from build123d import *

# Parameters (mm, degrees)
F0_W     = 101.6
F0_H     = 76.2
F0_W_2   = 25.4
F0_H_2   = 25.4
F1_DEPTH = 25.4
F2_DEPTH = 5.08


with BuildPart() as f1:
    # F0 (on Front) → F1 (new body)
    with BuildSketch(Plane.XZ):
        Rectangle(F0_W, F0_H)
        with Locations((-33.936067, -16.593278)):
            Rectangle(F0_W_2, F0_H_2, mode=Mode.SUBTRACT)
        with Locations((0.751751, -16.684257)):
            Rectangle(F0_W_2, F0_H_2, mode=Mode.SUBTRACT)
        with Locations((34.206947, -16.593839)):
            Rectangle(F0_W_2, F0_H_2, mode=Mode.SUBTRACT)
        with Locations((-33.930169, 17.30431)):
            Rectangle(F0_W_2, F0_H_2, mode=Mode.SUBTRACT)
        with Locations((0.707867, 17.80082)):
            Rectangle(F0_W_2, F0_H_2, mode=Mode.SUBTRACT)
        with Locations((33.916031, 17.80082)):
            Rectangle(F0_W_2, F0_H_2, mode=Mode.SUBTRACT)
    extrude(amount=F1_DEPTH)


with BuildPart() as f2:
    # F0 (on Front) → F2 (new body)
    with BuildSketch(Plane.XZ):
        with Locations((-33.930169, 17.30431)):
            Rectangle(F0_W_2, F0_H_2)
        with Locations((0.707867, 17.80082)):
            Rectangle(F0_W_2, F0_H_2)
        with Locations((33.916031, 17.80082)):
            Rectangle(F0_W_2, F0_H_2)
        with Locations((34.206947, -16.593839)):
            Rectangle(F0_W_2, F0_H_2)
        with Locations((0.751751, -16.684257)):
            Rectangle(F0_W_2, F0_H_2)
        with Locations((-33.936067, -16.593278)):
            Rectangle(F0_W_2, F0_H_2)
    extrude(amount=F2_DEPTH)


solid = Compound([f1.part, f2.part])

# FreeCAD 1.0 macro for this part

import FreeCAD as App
import Part
import Sketcher
from FreeCAD import Vector
Q = App.Units.Quantity

doc = App.newDocument("Part")
body = doc.addObject("PartDesign::Body", "Body")

# Sketch on XZ plane
sketch1 = doc.addObject("Sketcher::SketchObject", "Sketch")
body.addObject(sketch1)
sketch1.AttachmentSupport = (doc.XZ_Plane, [""])
sketch1.MapMode = "FlatFace"
sketch1.addGeometry([
    Part.LineSegment(Vector(-51, 38, 0), Vector(-51, -38, 0)),  # 0
    Part.LineSegment(Vector(-51, -38, 0), Vector(51, -38, 0)),  # 1
    Part.LineSegment(Vector(51, -38, 0), Vector(51, 38, 0)),  # 2
    Part.LineSegment(Vector(51, 38, 0), Vector(-51, 38, 0)),  # 3
    Part.LineSegment(Vector(-21, -29, 0), Vector(-47, -29, 0)),  # 4
    Part.LineSegment(Vector(-47, -29, 0), Vector(-47, -4, 0)),  # 5
    Part.LineSegment(Vector(-47, -4, 0), Vector(-21, -4, 0)),  # 6
    Part.LineSegment(Vector(-21, -4, 0), Vector(-21, -29, 0)),  # 7
    Part.LineSegment(Vector(13, -29, 0), Vector(-12, -29, 0)),  # 8
    Part.LineSegment(Vector(-12, -29, 0), Vector(-12, -4, 0)),  # 9
    Part.LineSegment(Vector(-12, -4, 0), Vector(13, -4, 0)),  # 10
    Part.LineSegment(Vector(13, -4, 0), Vector(13, -29, 0)),  # 11
    Part.LineSegment(Vector(47, -29, 0), Vector(22, -29, 0)),  # 12
    Part.LineSegment(Vector(22, -29, 0), Vector(22, -4, 0)),  # 13
    Part.LineSegment(Vector(22, -4, 0), Vector(47, -4, 0)),  # 14
    Part.LineSegment(Vector(47, -4, 0), Vector(47, -29, 0)),  # 15
    Part.LineSegment(Vector(-21, 5, 0), Vector(-47, 5, 0)),  # 16
    Part.LineSegment(Vector(-47, 5, 0), Vector(-47, 30, 0)),  # 17
    Part.LineSegment(Vector(-47, 30, 0), Vector(-21, 30, 0)),  # 18
    Part.LineSegment(Vector(-21, 30, 0), Vector(-21, 5, 0)),  # 19
    Part.LineSegment(Vector(13, 5, 0), Vector(-12, 5, 0)),  # 20
    Part.LineSegment(Vector(-12, 5, 0), Vector(-12, 31, 0)),  # 21
    Part.LineSegment(Vector(-12, 31, 0), Vector(13, 31, 0)),  # 22
    Part.LineSegment(Vector(13, 31, 0), Vector(13, 5, 0)),  # 23
    Part.LineSegment(Vector(47, 5, 0), Vector(21, 5, 0)),  # 24
    Part.LineSegment(Vector(21, 5, 0), Vector(21, 31, 0)),  # 25
    Part.LineSegment(Vector(21, 31, 0), Vector(47, 31, 0)),  # 26
    Part.LineSegment(Vector(47, 31, 0), Vector(47, 5, 0)),  # 27
], False)
sketch1.addConstraint([
    Sketcher.Constraint("Coincident", 0, 2, 1, 1),
    Sketcher.Constraint("Coincident", 1, 2, 2, 1),
    Sketcher.Constraint("Coincident", 2, 2, 3, 1),
    Sketcher.Constraint("Coincident", 3, 2, 0, 1),
    Sketcher.Constraint("Coincident", 4, 2, 5, 1),
    Sketcher.Constraint("Coincident", 5, 2, 6, 1),
    Sketcher.Constraint("Coincident", 6, 2, 7, 1),
    Sketcher.Constraint("Coincident", 7, 2, 4, 1),
    Sketcher.Constraint("Coincident", 8, 2, 9, 1),
    Sketcher.Constraint("Coincident", 9, 2, 10, 1),
    Sketcher.Constraint("Coincident", 10, 2, 11, 1),
    Sketcher.Constraint("Coincident", 11, 2, 8, 1),
    Sketcher.Constraint("Coincident", 12, 2, 13, 1),
    Sketcher.Constraint("Coincident", 13, 2, 14, 1),
    Sketcher.Constraint("Coincident", 14, 2, 15, 1),
    Sketcher.Constraint("Coincident", 15, 2, 12, 1),
    Sketcher.Constraint("Coincident", 16, 2, 17, 1),
    Sketcher.Constraint("Coincident", 17, 2, 18, 1),
    Sketcher.Constraint("Coincident", 18, 2, 19, 1),
    Sketcher.Constraint("Coincident", 19, 2, 16, 1),
    Sketcher.Constraint("Coincident", 20, 2, 21, 1),
    Sketcher.Constraint("Coincident", 21, 2, 22, 1),
    Sketcher.Constraint("Coincident", 22, 2, 23, 1),
    Sketcher.Constraint("Coincident", 23, 2, 20, 1),
    Sketcher.Constraint("Coincident", 24, 2, 25, 1),
    Sketcher.Constraint("Coincident", 25, 2, 26, 1),
    Sketcher.Constraint("Coincident", 26, 2, 27, 1),
    Sketcher.Constraint("Coincident", 27, 2, 24, 1),
    Sketcher.Constraint("Vertical", 0),
    Sketcher.Constraint("Horizontal", 1),
    Sketcher.Constraint("Vertical", 2),
    Sketcher.Constraint("Horizontal", 3),
    Sketcher.Constraint("Horizontal", 4),
    Sketcher.Constraint("Vertical", 5),
    Sketcher.Constraint("Horizontal", 6),
    Sketcher.Constraint("Vertical", 7),
    Sketcher.Constraint("Horizontal", 8),
    Sketcher.Constraint("Vertical", 9),
    Sketcher.Constraint("Horizontal", 10),
    Sketcher.Constraint("Vertical", 11),
    Sketcher.Constraint("Horizontal", 12),
    Sketcher.Constraint("Vertical", 13),
    Sketcher.Constraint("Horizontal", 14),
    Sketcher.Constraint("Vertical", 15),
    Sketcher.Constraint("Horizontal", 16),
    Sketcher.Constraint("Vertical", 17),
    Sketcher.Constraint("Horizontal", 18),
    Sketcher.Constraint("Vertical", 19),
    Sketcher.Constraint("Horizontal", 20),
    Sketcher.Constraint("Vertical", 21),
    Sketcher.Constraint("Horizontal", 22),
    Sketcher.Constraint("Vertical", 23),
    Sketcher.Constraint("Horizontal", 24),
    Sketcher.Constraint("Vertical", 25),
    Sketcher.Constraint("Horizontal", 26),
    Sketcher.Constraint("Vertical", 27),
    Sketcher.Constraint("Symmetric", 0, 2, 2, 2, -1, 1),
    Sketcher.Constraint("Horizontal", 23, 2, 24, 2),
    Sketcher.Constraint("Horizontal", 22, 2, 25, 2),
    Sketcher.Constraint("Equal", 6, 8),
    Sketcher.Constraint("Equal", 10, 12),
    Sketcher.Constraint("Equal", 14, 16),
    Sketcher.Constraint("Equal", 18, 20),
    Sketcher.Constraint("Equal", 22, 24),
    Sketcher.Constraint("Equal", 26, 5),
    Sketcher.Constraint("Equal", 7, 9),
    Sketcher.Constraint("Equal", 11, 13),
    Sketcher.Constraint("Equal", 15, 17),
    Sketcher.Constraint("Equal", 19, 21),
    Sketcher.Constraint("DistanceX", 1, 1, 1, 2, Q("4 in")),
    Sketcher.Constraint("DistanceX", 4, 2, 4, 1, Q("1 in")),
    Sketcher.Constraint("DistanceY", 0, 2, 0, 1, Q("3 in")),
    Sketcher.Constraint("DistanceY", 4, 2, -1, 1, Q("29.293278 mm")),
    Sketcher.Constraint("DistanceX", 8, 2, -1, 1, Q("11.948249 mm")),
    Sketcher.Constraint("DistanceY", 12, 2, -1, 1, Q("29.293839 mm")),
    Sketcher.Constraint("DistanceX", 16, 2, -1, 1, Q("46.630169 mm")),
    Sketcher.Constraint("DistanceY", -1, 1, 16, 2, Q("4.60431 mm")),
    Sketcher.Constraint("DistanceY", -1, 1, 20, 2, Q("5.10082 mm")),
    Sketcher.Constraint("DistanceX", -1, 1, 24, 2, Q("21.216031 mm")),
    Sketcher.Constraint("DistanceY", 8, 2, 7, 2, Q("0.090979 mm")),
    Sketcher.Constraint("DistanceX", 22, 2, 13, 2, Q("8.09908 mm")),
    Sketcher.Constraint("DistanceX", 4, 2, -1, 1, Q("46.636067 mm")),
    Sketcher.Constraint("DistanceX", -1, 1, 12, 2, Q("21.506947 mm")),
])
pad1 = doc.addObject("PartDesign::Pad", "Pad")
body.addObject(pad1)
pad1.Profile = sketch1
pad1.Length = Q("1 in")
body2 = doc.addObject("PartDesign::Body", "Body001")
body2.AllowCompound = True

# Sketch on XZ plane
sketch2 = doc.addObject("Sketcher::SketchObject", "Sketch001")
body2.addObject(sketch2)
sketch2.AttachmentSupport = (doc.getObject("XZ_Plane001"), [""])
sketch2.MapMode = "FlatFace"
sketch2.addGeometry([
    Part.LineSegment(Vector(-47, 30, 0), Vector(-47, 5, 0)),  # 0
    Part.LineSegment(Vector(-47, 5, 0), Vector(-21, 5, 0)),  # 1
    Part.LineSegment(Vector(-21, 5, 0), Vector(-21, 30, 0)),  # 2
    Part.LineSegment(Vector(-21, 30, 0), Vector(-47, 30, 0)),  # 3
    Part.LineSegment(Vector(-12, 31, 0), Vector(-12, 5, 0)),  # 4
    Part.LineSegment(Vector(-12, 5, 0), Vector(13, 5, 0)),  # 5
    Part.LineSegment(Vector(13, 5, 0), Vector(13, 31, 0)),  # 6
    Part.LineSegment(Vector(13, 31, 0), Vector(-12, 31, 0)),  # 7
    Part.LineSegment(Vector(21, 31, 0), Vector(21, 5, 0)),  # 8
    Part.LineSegment(Vector(21, 5, 0), Vector(47, 5, 0)),  # 9
    Part.LineSegment(Vector(47, 5, 0), Vector(47, 31, 0)),  # 10
    Part.LineSegment(Vector(47, 31, 0), Vector(21, 31, 0)),  # 11
    Part.LineSegment(Vector(22, -4, 0), Vector(22, -29, 0)),  # 12
    Part.LineSegment(Vector(22, -29, 0), Vector(47, -29, 0)),  # 13
    Part.LineSegment(Vector(47, -29, 0), Vector(47, -4, 0)),  # 14
    Part.LineSegment(Vector(47, -4, 0), Vector(22, -4, 0)),  # 15
    Part.LineSegment(Vector(-12, -4, 0), Vector(-12, -29, 0)),  # 16
    Part.LineSegment(Vector(-12, -29, 0), Vector(13, -29, 0)),  # 17
    Part.LineSegment(Vector(13, -29, 0), Vector(13, -4, 0)),  # 18
    Part.LineSegment(Vector(13, -4, 0), Vector(-12, -4, 0)),  # 19
    Part.LineSegment(Vector(-47, -4, 0), Vector(-47, -29, 0)),  # 20
    Part.LineSegment(Vector(-47, -29, 0), Vector(-21, -29, 0)),  # 21
    Part.LineSegment(Vector(-21, -29, 0), Vector(-21, -4, 0)),  # 22
    Part.LineSegment(Vector(-21, -4, 0), Vector(-47, -4, 0)),  # 23
], False)
sketch2.addConstraint([
    Sketcher.Constraint("Coincident", 0, 2, 1, 1),
    Sketcher.Constraint("Coincident", 1, 2, 2, 1),
    Sketcher.Constraint("Coincident", 2, 2, 3, 1),
    Sketcher.Constraint("Coincident", 3, 2, 0, 1),
    Sketcher.Constraint("Coincident", 4, 2, 5, 1),
    Sketcher.Constraint("Coincident", 5, 2, 6, 1),
    Sketcher.Constraint("Coincident", 6, 2, 7, 1),
    Sketcher.Constraint("Coincident", 7, 2, 4, 1),
    Sketcher.Constraint("Coincident", 8, 2, 9, 1),
    Sketcher.Constraint("Coincident", 9, 2, 10, 1),
    Sketcher.Constraint("Coincident", 10, 2, 11, 1),
    Sketcher.Constraint("Coincident", 11, 2, 8, 1),
    Sketcher.Constraint("Coincident", 12, 2, 13, 1),
    Sketcher.Constraint("Coincident", 13, 2, 14, 1),
    Sketcher.Constraint("Coincident", 14, 2, 15, 1),
    Sketcher.Constraint("Coincident", 15, 2, 12, 1),
    Sketcher.Constraint("Coincident", 16, 2, 17, 1),
    Sketcher.Constraint("Coincident", 17, 2, 18, 1),
    Sketcher.Constraint("Coincident", 18, 2, 19, 1),
    Sketcher.Constraint("Coincident", 19, 2, 16, 1),
    Sketcher.Constraint("Coincident", 20, 2, 21, 1),
    Sketcher.Constraint("Coincident", 21, 2, 22, 1),
    Sketcher.Constraint("Coincident", 22, 2, 23, 1),
    Sketcher.Constraint("Coincident", 23, 2, 20, 1),
    Sketcher.Constraint("Vertical", 0),
    Sketcher.Constraint("Horizontal", 1),
    Sketcher.Constraint("Vertical", 2),
    Sketcher.Constraint("Horizontal", 3),
    Sketcher.Constraint("Vertical", 4),
    Sketcher.Constraint("Horizontal", 5),
    Sketcher.Constraint("Vertical", 6),
    Sketcher.Constraint("Horizontal", 7),
    Sketcher.Constraint("Vertical", 8),
    Sketcher.Constraint("Horizontal", 9),
    Sketcher.Constraint("Vertical", 10),
    Sketcher.Constraint("Horizontal", 11),
    Sketcher.Constraint("Vertical", 12),
    Sketcher.Constraint("Horizontal", 13),
    Sketcher.Constraint("Vertical", 14),
    Sketcher.Constraint("Horizontal", 15),
    Sketcher.Constraint("Vertical", 16),
    Sketcher.Constraint("Horizontal", 17),
    Sketcher.Constraint("Vertical", 18),
    Sketcher.Constraint("Horizontal", 19),
    Sketcher.Constraint("Vertical", 20),
    Sketcher.Constraint("Horizontal", 21),
    Sketcher.Constraint("Vertical", 22),
    Sketcher.Constraint("Horizontal", 23),
    Sketcher.Constraint("Horizontal", 5, 2, 8, 2),
    Sketcher.Constraint("Horizontal", 7, 2, 10, 2),
    Sketcher.Constraint("Equal", 3, 5),
    Sketcher.Constraint("Equal", 7, 9),
    Sketcher.Constraint("Equal", 11, 13),
    Sketcher.Constraint("Equal", 15, 17),
    Sketcher.Constraint("Equal", 19, 21),
    Sketcher.Constraint("Equal", 23, 0),
    Sketcher.Constraint("Equal", 2, 4),
    Sketcher.Constraint("Equal", 10, 12),
    Sketcher.Constraint("Equal", 14, 16),
    Sketcher.Constraint("Equal", 18, 20),
    Sketcher.Constraint("DistanceX", 1, 1, 1, 2, Q("1 in")),
    Sketcher.Constraint("DistanceX", 1, 2, 8, 2, Q("42.4462 mm")),
    Sketcher.Constraint("DistanceX", 0, 2, -1, 1, Q("46.630169 mm")),
    Sketcher.Constraint("DistanceY", -1, 1, 0, 2, Q("4.60431 mm")),
    Sketcher.Constraint("DistanceY", -1, 1, 4, 2, Q("5.10082 mm")),
    Sketcher.Constraint("DistanceY", 12, 2, -1, 1, Q("29.293839 mm")),
    Sketcher.Constraint("DistanceX", 16, 2, -1, 1, Q("11.948249 mm")),
    Sketcher.Constraint("DistanceY", 20, 2, -1, 1, Q("29.293278 mm")),
    Sketcher.Constraint("DistanceX", 5, 2, 12, 2, Q("8.09908 mm")),
    Sketcher.Constraint("DistanceY", 16, 2, 12, 2, Q("0.090418 mm")),
    Sketcher.Constraint("DistanceX", 4, 2, -1, 1, Q("11.992133 mm")),
    Sketcher.Constraint("DistanceX", 20, 2, -1, 1, Q("46.636067 mm")),
])
pad2 = doc.addObject("PartDesign::Pad", "Pad001")
body2.addObject(pad2)
pad2.Profile = sketch2
pad2.Length = Q("0.2 in")

doc.recompute()
